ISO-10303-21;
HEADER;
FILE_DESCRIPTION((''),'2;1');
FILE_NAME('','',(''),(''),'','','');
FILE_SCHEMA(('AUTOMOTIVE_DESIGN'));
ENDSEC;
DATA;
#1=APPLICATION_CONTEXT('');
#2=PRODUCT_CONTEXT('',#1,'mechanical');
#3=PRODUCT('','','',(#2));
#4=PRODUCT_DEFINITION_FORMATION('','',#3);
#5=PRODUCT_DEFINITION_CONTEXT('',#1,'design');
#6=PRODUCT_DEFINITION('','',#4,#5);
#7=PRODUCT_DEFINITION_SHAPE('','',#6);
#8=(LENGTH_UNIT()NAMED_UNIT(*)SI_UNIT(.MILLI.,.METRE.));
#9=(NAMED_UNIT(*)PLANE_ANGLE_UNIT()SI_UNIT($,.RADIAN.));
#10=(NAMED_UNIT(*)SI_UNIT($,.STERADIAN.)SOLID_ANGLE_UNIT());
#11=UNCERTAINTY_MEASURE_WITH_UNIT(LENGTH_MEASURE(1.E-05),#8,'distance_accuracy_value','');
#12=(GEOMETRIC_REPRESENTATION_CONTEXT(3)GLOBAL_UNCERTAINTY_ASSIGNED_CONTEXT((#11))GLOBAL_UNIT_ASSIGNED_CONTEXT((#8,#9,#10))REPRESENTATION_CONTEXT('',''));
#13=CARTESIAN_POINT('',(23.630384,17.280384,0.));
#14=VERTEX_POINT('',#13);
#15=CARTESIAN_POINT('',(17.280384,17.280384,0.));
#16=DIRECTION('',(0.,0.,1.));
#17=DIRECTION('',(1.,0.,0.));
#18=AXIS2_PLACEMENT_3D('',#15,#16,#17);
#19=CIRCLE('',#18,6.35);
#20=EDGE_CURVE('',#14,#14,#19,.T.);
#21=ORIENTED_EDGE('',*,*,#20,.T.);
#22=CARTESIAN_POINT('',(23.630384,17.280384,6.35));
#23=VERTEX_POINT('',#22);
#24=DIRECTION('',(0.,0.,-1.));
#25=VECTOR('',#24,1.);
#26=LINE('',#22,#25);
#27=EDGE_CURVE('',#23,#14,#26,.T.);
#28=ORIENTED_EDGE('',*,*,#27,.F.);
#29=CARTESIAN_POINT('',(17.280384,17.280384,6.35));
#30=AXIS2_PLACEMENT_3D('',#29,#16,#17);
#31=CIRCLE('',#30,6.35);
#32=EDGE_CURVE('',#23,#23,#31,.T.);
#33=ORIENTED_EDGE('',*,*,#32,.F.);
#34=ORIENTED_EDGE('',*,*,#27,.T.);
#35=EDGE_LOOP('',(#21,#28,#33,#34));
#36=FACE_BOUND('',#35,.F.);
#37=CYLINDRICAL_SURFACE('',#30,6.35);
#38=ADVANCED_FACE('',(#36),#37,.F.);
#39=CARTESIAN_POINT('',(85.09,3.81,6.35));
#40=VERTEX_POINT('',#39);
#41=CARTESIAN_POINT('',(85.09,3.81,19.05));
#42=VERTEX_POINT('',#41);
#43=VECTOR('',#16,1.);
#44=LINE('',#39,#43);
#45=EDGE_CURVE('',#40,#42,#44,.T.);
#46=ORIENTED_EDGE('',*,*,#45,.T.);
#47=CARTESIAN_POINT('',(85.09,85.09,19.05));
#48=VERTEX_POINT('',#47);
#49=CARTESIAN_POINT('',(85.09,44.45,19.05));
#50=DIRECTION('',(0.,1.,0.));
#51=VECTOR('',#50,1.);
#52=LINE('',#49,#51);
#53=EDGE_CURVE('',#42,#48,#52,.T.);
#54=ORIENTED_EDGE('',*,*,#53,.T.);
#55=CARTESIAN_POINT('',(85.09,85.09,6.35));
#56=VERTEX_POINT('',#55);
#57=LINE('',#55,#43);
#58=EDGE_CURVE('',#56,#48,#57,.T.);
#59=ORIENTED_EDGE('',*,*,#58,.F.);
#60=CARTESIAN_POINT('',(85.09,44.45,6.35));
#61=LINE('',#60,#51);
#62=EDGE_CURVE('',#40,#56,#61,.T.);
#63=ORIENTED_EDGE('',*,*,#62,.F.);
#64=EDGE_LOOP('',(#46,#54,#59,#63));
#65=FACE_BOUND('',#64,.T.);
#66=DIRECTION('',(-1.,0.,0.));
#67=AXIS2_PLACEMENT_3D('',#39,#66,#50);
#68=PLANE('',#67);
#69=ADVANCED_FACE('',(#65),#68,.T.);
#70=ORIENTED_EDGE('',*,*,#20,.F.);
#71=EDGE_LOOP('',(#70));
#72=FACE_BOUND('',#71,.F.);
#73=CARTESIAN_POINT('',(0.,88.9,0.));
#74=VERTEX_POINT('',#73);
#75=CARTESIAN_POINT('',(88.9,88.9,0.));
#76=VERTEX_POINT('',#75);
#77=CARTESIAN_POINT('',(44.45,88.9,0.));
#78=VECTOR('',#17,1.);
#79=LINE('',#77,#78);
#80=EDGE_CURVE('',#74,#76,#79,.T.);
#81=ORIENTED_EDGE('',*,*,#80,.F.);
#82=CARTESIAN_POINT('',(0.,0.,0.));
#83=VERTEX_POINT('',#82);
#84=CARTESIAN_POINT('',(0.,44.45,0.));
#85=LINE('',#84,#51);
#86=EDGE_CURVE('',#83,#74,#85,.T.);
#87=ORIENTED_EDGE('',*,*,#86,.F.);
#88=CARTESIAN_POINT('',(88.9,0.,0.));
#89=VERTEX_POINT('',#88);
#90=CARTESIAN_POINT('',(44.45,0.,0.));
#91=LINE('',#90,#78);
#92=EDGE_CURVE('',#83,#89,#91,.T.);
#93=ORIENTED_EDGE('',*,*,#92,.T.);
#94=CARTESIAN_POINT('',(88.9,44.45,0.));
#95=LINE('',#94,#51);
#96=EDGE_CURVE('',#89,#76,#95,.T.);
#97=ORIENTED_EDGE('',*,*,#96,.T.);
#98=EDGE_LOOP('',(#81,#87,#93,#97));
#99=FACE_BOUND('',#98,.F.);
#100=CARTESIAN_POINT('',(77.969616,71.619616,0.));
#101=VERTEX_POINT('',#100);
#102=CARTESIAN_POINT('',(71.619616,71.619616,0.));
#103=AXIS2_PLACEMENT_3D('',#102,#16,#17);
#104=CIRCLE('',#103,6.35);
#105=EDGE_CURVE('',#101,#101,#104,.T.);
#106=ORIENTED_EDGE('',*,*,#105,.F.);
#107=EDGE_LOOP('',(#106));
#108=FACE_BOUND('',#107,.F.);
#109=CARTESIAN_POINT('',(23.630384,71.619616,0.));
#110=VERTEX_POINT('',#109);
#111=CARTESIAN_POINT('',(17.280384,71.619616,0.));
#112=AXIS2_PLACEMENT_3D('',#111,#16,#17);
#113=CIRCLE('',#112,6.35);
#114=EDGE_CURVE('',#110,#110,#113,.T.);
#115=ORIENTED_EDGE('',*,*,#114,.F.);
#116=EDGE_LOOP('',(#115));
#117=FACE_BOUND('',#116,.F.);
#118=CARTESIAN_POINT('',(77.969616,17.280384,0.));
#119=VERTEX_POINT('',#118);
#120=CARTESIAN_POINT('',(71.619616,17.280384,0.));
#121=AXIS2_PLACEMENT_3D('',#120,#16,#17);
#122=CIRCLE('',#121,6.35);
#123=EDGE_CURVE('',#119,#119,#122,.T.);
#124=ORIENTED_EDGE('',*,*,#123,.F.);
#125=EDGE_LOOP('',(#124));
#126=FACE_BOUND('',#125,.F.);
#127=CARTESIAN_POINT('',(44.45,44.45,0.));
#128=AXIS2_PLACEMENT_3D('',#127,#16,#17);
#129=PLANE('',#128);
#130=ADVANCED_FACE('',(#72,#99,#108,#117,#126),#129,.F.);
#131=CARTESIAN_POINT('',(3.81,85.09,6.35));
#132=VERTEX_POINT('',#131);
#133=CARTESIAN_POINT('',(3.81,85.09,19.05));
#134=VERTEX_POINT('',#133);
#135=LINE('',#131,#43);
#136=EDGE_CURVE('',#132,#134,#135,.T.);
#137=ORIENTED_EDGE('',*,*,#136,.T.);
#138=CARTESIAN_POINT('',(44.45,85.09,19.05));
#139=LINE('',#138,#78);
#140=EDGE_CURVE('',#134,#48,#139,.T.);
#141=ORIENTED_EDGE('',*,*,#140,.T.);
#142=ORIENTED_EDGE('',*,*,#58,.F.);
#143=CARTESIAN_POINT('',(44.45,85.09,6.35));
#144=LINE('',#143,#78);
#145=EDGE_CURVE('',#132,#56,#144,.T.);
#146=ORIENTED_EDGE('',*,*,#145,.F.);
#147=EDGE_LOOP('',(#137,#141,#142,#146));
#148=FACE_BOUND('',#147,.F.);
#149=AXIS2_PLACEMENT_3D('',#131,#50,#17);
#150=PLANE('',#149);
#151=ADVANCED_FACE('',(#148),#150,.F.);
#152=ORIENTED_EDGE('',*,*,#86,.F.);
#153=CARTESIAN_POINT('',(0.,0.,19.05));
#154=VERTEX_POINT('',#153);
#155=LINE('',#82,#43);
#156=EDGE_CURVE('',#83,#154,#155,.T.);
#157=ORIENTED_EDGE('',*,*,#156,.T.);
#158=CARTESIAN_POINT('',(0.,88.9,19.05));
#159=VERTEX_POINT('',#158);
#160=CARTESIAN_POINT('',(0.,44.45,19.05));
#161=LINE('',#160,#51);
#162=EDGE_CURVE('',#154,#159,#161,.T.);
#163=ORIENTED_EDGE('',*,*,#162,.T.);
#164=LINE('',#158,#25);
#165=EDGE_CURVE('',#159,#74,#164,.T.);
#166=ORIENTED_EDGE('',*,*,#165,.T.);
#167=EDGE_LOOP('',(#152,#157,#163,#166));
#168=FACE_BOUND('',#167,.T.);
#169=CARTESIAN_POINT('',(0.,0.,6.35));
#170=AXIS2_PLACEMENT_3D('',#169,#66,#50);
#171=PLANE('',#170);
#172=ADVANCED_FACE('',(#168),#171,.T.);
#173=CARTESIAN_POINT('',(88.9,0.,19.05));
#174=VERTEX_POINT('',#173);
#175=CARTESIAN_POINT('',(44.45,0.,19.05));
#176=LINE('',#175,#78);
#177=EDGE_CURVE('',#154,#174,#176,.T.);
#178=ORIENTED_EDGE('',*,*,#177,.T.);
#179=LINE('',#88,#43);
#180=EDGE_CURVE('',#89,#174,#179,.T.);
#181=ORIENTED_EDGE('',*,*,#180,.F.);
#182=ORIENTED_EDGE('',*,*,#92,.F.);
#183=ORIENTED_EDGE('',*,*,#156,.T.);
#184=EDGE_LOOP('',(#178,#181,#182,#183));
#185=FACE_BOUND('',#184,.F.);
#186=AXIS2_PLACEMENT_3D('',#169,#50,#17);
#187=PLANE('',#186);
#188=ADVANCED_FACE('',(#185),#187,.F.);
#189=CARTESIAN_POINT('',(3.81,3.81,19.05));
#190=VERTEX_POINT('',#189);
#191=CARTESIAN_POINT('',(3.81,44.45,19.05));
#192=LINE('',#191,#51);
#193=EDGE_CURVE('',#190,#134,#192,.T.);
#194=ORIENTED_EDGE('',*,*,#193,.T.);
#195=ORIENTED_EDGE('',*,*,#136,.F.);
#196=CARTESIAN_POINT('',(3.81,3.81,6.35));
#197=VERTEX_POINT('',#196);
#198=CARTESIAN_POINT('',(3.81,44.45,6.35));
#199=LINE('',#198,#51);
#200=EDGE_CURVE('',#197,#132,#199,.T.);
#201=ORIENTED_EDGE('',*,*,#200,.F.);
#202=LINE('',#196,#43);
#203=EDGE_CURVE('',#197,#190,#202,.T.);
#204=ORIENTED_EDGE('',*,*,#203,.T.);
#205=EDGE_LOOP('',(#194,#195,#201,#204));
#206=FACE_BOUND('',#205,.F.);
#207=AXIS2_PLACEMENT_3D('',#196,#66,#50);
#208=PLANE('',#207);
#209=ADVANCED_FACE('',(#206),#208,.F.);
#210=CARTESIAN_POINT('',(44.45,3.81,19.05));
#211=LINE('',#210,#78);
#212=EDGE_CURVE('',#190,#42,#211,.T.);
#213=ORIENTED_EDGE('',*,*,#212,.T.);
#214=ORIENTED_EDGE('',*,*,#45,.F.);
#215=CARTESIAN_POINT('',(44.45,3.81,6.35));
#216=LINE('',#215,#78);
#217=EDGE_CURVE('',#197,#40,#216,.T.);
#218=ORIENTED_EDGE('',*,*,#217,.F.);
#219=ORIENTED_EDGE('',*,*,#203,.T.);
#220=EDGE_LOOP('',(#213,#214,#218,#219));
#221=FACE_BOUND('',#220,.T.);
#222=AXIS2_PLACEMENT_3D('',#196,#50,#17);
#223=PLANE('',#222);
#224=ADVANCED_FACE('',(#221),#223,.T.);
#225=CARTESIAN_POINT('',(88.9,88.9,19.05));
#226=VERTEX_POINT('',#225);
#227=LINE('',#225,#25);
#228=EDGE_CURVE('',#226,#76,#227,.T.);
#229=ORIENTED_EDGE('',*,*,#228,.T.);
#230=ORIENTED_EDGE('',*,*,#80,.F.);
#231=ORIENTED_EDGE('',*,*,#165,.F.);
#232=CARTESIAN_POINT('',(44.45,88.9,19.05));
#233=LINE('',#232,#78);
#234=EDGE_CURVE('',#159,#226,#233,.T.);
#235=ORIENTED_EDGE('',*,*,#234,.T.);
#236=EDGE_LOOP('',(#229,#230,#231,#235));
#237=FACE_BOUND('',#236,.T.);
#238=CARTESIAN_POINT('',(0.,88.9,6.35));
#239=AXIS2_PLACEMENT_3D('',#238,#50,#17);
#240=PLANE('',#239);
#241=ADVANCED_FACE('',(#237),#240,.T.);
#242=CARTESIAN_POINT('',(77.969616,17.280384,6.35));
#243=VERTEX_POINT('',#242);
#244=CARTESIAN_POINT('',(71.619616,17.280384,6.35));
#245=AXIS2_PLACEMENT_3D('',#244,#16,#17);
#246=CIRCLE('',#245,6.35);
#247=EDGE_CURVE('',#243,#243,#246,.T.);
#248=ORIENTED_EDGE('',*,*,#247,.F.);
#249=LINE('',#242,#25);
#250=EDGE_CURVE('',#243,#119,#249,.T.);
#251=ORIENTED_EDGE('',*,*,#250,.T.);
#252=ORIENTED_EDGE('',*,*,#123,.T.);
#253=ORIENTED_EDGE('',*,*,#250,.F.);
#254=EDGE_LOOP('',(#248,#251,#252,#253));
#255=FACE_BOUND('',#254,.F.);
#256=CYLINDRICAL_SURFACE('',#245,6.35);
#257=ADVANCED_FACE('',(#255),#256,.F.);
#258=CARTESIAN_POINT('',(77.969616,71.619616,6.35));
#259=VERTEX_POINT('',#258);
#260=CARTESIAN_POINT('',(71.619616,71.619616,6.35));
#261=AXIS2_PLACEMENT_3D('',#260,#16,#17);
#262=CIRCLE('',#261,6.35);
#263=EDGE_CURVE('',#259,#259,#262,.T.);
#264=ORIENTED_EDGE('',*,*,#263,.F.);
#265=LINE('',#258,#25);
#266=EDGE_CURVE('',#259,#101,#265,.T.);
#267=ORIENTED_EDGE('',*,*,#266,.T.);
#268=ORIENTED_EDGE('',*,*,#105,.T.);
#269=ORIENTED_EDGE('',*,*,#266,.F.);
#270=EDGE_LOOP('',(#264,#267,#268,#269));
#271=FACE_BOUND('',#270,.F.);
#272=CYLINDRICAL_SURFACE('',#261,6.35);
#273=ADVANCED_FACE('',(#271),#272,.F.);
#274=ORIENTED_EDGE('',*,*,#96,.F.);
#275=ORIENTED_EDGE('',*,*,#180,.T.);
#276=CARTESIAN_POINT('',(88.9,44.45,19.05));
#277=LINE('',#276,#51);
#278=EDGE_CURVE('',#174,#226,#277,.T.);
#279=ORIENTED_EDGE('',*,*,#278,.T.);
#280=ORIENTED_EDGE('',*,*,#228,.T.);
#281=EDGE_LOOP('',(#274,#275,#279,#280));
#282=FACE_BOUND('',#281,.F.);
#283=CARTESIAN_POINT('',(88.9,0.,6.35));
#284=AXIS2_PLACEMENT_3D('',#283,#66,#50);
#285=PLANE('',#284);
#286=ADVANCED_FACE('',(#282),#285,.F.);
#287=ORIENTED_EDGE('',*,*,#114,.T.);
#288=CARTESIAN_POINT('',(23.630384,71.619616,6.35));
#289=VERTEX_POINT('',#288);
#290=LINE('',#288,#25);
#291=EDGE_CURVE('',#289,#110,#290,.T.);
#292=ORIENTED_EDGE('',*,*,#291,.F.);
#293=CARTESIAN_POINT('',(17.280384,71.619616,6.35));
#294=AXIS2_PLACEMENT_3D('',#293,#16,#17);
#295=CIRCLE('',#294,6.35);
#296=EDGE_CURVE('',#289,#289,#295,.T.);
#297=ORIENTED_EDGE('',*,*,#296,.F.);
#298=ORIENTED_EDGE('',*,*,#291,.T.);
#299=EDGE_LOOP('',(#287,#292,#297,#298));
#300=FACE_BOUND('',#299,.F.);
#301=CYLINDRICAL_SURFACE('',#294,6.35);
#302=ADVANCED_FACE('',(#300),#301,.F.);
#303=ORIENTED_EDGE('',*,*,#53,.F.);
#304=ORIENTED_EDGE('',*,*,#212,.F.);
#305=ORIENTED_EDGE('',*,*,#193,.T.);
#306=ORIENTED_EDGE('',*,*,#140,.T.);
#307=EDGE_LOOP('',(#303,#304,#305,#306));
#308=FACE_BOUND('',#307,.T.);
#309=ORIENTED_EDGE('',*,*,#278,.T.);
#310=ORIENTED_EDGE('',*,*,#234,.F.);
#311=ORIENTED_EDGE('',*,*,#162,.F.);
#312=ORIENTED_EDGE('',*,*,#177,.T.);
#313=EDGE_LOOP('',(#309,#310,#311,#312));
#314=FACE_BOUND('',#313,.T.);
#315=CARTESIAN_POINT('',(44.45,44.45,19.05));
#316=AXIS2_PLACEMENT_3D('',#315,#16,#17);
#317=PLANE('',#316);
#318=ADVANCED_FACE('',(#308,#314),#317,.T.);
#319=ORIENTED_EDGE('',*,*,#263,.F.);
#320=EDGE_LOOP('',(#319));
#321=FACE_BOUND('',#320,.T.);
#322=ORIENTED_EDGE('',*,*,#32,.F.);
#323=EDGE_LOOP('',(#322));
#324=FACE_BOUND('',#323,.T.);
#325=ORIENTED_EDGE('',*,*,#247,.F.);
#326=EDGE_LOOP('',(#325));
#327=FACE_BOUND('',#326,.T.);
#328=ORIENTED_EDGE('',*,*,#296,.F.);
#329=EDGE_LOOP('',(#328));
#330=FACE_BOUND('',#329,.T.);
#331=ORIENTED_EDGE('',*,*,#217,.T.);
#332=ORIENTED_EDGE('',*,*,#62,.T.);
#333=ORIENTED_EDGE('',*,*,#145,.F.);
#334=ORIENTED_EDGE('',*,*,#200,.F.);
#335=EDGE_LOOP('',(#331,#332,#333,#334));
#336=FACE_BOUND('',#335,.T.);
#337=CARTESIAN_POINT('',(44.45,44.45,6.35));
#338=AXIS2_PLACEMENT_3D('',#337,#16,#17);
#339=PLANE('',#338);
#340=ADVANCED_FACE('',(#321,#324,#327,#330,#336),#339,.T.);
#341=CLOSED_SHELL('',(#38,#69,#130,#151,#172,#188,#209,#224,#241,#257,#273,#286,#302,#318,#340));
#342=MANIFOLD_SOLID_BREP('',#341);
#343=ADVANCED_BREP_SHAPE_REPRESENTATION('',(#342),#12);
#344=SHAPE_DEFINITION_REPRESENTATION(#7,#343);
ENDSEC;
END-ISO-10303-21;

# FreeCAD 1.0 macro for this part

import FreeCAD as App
import Part
import Sketcher
Q = App.Units.Quantity


def add_polygon(sketch, points):
    """Adds a closed chain of lines whose ends are joined by coincident constraints."""
    first, n = sketch.GeometryCount, len(points)
    for a, b in zip(points, points[1:] + points[:1]):
        sketch.addGeometry(Part.LineSegment(App.Vector(*a, 0), App.Vector(*b, 0)), False)
    for i in range(n):
        sketch.addConstraint(Sketcher.Constraint("Coincident", first + i, 2, first + (i + 1) % n, 1))

doc = App.newDocument("Part")
params = doc.addObject("Spreadsheet::Sheet", "Params")
for row, (alias, value) in enumerate([
    ("sketch1_width", "3.5 in"),
    ("pad1_length", "0.25 in"),
    ("sketch2_width", "3.5 in"),
    ("sketch2_width2", "3.2 in"),
    ("pad2_length", "0.5 in"),
    ("sketch3_diameter", "0.5 in"),
], start=1):
    params.set(f"A{row}", alias)
    params.set(f"B{row}", "=" + value)
    params.setAlias(f"B{row}", alias)

body = doc.addObject("PartDesign::Body", "Body")

# Sketch on XY plane
sketch1 = doc.addObject("Sketcher::SketchObject", "Sketch")
body.addObject(sketch1)
sketch1.AttachmentSupport = (doc.XY_Plane, [""])
sketch1.MapMode = "FlatFace"
add_polygon(sketch1, [(0, 88.9), (0, 0), (88.9, 0), (88.9, 88.9)])  # lines 0-3
sketch1.addConstraint(Sketcher.Constraint("Vertical", 0))
sketch1.addConstraint(Sketcher.Constraint("Horizontal", 1))
sketch1.addConstraint(Sketcher.Constraint("Vertical", 2))
sketch1.addConstraint(Sketcher.Constraint("Horizontal", 3))
sketch1.addConstraint(Sketcher.Constraint("Coincident", 0, 2, -1, 1))
sketch1.addConstraint(Sketcher.Constraint("Equal", 3, 0))
sketch1.addConstraint(Sketcher.Constraint("DistanceX", 1, 1, 1, 2, Q("3.5 in")))
sketch1.setExpression("Constraints[10]", "Params.sketch1_width")
pad1 = doc.addObject("PartDesign::Pad", "Pad")
body.addObject(pad1)
pad1.Profile = sketch1
pad1.setExpression("Length", "Params.pad1_length")

# Sketch on XY plane
sketch2 = doc.addObject("Sketcher::SketchObject", "Sketch001")
body.addObject(sketch2)
sketch2.AttachmentSupport = (doc.XY_Plane, [""])
sketch2.MapMode = "FlatFace"
sketch2.AttachmentOffset = App.Placement(App.Vector(0, 0, 0.25 * 25.4), App.Rotation())
add_polygon(sketch2, [(0, 88.9), (0, 0), (88.9, 0), (88.9, 88.9)])  # lines 0-3
add_polygon(sketch2, [(85.09, 3.81), (3.81, 3.81), (3.81, 85.09), (85.09, 85.09)])  # lines 4-7
sketch2.addConstraint(Sketcher.Constraint("Vertical", 0))
sketch2.addConstraint(Sketcher.Constraint("Horizontal", 1))
sketch2.addConstraint(Sketcher.Constraint("Vertical", 2))
sketch2.addConstraint(Sketcher.Constraint("Horizontal", 3))
sketch2.addConstraint(Sketcher.Constraint("Horizontal", 4))
sketch2.addConstraint(Sketcher.Constraint("Vertical", 5))
sketch2.addConstraint(Sketcher.Constraint("Horizontal", 6))
sketch2.addConstraint(Sketcher.Constraint("Vertical", 7))
sketch2.addConstraint(Sketcher.Constraint("Coincident", 0, 2, -1, 1))
sketch2.addConstraint(Sketcher.Constraint("Equal", 3, 0))
sketch2.addConstraint(Sketcher.Constraint("Equal", 6, 5))
sketch2.addConstraint(Sketcher.Constraint("DistanceX", 1, 1, 1, 2, Q("3.5 in")))
sketch2.addConstraint(Sketcher.Constraint("DistanceX", 4, 2, 4, 1, Q("3.2 in")))
sketch2.addConstraint(Sketcher.Constraint("DistanceX", -1, 1, 4, 2, Q("0.15 in")))
sketch2.addConstraint(Sketcher.Constraint("DistanceY", -1, 1, 4, 2, Q("0.15 in")))
sketch2.setExpression("Constraints[19]", "Params.sketch2_width")
sketch2.setExpression("Constraints[20]", "Params.sketch2_width2")
pad2 = doc.addObject("PartDesign::Pad", "Pad001")
body.addObject(pad2)
pad2.Profile = sketch2
pad2.setExpression("Length", "Params.pad2_length")

# Sketch on XY plane
sketch3 = doc.addObject("Sketcher::SketchObject", "Sketch002")
body.addObject(sketch3)
sketch3.AttachmentSupport = (doc.XY_Plane, [""])
sketch3.MapMode = "FlatFace"
sketch3.AttachmentOffset = App.Placement(App.Vector(0, 0, 0.25 * 25.4), App.Rotation())
sketch3.addGeometry(Part.Circle(App.Vector(17.280384, 71.619616, 0), App.Vector(0, 0, 1), 6.35), False)
sketch3.addGeometry(Part.Circle(App.Vector(17.280384, 17.280384, 0), App.Vector(0, 0, 1), 6.35), False)
sketch3.addGeometry(Part.Circle(App.Vector(71.619616, 17.280384, 0), App.Vector(0, 0, 1), 6.35), False)
sketch3.addGeometry(Part.Circle(App.Vector(71.619616, 71.619616, 0), App.Vector(0, 0, 1), 6.35), False)
sketch3.addConstraint(Sketcher.Constraint("Equal", 0, 1))
sketch3.addConstraint(Sketcher.Constraint("Equal", 1, 2))
sketch3.addConstraint(Sketcher.Constraint("Equal", 2, 3))
sketch3.addConstraint(Sketcher.Constraint("Horizontal", 1, 3, 2, 3))
sketch3.addConstraint(Sketcher.Constraint("Horizontal", 0, 3, 3, 3))
sketch3.addConstraint(Sketcher.Constraint("Vertical", 0, 3, 1, 3))
sketch3.addConstraint(Sketcher.Constraint("Vertical", 2, 3, 3, 3))
sketch3.addConstraint(Sketcher.Constraint("Diameter", 0, Q("0.5 in")))
sketch3.addConstraint(Sketcher.Constraint("DistanceY", 1, 3, 0, 3, 54.339232))
sketch3.addConstraint(Sketcher.Constraint("DistanceX", 1, 3, 2, 3, 54.339232))
sketch3.addConstraint(Sketcher.Constraint("DistanceX", -1, 1, 0, 3, 17.280384))
sketch3.addConstraint(Sketcher.Constraint("DistanceY", -1, 1, 0, 3, 71.619616))
sketch3.setExpression("Constraints[7]", "Params.sketch3_diameter")
pocket1 = doc.addObject("PartDesign::Pocket", "Pocket")
body.addObject(pocket1)
pocket1.Profile = sketch3
pocket1.Type = "ThroughAll"

doc.recompute()
